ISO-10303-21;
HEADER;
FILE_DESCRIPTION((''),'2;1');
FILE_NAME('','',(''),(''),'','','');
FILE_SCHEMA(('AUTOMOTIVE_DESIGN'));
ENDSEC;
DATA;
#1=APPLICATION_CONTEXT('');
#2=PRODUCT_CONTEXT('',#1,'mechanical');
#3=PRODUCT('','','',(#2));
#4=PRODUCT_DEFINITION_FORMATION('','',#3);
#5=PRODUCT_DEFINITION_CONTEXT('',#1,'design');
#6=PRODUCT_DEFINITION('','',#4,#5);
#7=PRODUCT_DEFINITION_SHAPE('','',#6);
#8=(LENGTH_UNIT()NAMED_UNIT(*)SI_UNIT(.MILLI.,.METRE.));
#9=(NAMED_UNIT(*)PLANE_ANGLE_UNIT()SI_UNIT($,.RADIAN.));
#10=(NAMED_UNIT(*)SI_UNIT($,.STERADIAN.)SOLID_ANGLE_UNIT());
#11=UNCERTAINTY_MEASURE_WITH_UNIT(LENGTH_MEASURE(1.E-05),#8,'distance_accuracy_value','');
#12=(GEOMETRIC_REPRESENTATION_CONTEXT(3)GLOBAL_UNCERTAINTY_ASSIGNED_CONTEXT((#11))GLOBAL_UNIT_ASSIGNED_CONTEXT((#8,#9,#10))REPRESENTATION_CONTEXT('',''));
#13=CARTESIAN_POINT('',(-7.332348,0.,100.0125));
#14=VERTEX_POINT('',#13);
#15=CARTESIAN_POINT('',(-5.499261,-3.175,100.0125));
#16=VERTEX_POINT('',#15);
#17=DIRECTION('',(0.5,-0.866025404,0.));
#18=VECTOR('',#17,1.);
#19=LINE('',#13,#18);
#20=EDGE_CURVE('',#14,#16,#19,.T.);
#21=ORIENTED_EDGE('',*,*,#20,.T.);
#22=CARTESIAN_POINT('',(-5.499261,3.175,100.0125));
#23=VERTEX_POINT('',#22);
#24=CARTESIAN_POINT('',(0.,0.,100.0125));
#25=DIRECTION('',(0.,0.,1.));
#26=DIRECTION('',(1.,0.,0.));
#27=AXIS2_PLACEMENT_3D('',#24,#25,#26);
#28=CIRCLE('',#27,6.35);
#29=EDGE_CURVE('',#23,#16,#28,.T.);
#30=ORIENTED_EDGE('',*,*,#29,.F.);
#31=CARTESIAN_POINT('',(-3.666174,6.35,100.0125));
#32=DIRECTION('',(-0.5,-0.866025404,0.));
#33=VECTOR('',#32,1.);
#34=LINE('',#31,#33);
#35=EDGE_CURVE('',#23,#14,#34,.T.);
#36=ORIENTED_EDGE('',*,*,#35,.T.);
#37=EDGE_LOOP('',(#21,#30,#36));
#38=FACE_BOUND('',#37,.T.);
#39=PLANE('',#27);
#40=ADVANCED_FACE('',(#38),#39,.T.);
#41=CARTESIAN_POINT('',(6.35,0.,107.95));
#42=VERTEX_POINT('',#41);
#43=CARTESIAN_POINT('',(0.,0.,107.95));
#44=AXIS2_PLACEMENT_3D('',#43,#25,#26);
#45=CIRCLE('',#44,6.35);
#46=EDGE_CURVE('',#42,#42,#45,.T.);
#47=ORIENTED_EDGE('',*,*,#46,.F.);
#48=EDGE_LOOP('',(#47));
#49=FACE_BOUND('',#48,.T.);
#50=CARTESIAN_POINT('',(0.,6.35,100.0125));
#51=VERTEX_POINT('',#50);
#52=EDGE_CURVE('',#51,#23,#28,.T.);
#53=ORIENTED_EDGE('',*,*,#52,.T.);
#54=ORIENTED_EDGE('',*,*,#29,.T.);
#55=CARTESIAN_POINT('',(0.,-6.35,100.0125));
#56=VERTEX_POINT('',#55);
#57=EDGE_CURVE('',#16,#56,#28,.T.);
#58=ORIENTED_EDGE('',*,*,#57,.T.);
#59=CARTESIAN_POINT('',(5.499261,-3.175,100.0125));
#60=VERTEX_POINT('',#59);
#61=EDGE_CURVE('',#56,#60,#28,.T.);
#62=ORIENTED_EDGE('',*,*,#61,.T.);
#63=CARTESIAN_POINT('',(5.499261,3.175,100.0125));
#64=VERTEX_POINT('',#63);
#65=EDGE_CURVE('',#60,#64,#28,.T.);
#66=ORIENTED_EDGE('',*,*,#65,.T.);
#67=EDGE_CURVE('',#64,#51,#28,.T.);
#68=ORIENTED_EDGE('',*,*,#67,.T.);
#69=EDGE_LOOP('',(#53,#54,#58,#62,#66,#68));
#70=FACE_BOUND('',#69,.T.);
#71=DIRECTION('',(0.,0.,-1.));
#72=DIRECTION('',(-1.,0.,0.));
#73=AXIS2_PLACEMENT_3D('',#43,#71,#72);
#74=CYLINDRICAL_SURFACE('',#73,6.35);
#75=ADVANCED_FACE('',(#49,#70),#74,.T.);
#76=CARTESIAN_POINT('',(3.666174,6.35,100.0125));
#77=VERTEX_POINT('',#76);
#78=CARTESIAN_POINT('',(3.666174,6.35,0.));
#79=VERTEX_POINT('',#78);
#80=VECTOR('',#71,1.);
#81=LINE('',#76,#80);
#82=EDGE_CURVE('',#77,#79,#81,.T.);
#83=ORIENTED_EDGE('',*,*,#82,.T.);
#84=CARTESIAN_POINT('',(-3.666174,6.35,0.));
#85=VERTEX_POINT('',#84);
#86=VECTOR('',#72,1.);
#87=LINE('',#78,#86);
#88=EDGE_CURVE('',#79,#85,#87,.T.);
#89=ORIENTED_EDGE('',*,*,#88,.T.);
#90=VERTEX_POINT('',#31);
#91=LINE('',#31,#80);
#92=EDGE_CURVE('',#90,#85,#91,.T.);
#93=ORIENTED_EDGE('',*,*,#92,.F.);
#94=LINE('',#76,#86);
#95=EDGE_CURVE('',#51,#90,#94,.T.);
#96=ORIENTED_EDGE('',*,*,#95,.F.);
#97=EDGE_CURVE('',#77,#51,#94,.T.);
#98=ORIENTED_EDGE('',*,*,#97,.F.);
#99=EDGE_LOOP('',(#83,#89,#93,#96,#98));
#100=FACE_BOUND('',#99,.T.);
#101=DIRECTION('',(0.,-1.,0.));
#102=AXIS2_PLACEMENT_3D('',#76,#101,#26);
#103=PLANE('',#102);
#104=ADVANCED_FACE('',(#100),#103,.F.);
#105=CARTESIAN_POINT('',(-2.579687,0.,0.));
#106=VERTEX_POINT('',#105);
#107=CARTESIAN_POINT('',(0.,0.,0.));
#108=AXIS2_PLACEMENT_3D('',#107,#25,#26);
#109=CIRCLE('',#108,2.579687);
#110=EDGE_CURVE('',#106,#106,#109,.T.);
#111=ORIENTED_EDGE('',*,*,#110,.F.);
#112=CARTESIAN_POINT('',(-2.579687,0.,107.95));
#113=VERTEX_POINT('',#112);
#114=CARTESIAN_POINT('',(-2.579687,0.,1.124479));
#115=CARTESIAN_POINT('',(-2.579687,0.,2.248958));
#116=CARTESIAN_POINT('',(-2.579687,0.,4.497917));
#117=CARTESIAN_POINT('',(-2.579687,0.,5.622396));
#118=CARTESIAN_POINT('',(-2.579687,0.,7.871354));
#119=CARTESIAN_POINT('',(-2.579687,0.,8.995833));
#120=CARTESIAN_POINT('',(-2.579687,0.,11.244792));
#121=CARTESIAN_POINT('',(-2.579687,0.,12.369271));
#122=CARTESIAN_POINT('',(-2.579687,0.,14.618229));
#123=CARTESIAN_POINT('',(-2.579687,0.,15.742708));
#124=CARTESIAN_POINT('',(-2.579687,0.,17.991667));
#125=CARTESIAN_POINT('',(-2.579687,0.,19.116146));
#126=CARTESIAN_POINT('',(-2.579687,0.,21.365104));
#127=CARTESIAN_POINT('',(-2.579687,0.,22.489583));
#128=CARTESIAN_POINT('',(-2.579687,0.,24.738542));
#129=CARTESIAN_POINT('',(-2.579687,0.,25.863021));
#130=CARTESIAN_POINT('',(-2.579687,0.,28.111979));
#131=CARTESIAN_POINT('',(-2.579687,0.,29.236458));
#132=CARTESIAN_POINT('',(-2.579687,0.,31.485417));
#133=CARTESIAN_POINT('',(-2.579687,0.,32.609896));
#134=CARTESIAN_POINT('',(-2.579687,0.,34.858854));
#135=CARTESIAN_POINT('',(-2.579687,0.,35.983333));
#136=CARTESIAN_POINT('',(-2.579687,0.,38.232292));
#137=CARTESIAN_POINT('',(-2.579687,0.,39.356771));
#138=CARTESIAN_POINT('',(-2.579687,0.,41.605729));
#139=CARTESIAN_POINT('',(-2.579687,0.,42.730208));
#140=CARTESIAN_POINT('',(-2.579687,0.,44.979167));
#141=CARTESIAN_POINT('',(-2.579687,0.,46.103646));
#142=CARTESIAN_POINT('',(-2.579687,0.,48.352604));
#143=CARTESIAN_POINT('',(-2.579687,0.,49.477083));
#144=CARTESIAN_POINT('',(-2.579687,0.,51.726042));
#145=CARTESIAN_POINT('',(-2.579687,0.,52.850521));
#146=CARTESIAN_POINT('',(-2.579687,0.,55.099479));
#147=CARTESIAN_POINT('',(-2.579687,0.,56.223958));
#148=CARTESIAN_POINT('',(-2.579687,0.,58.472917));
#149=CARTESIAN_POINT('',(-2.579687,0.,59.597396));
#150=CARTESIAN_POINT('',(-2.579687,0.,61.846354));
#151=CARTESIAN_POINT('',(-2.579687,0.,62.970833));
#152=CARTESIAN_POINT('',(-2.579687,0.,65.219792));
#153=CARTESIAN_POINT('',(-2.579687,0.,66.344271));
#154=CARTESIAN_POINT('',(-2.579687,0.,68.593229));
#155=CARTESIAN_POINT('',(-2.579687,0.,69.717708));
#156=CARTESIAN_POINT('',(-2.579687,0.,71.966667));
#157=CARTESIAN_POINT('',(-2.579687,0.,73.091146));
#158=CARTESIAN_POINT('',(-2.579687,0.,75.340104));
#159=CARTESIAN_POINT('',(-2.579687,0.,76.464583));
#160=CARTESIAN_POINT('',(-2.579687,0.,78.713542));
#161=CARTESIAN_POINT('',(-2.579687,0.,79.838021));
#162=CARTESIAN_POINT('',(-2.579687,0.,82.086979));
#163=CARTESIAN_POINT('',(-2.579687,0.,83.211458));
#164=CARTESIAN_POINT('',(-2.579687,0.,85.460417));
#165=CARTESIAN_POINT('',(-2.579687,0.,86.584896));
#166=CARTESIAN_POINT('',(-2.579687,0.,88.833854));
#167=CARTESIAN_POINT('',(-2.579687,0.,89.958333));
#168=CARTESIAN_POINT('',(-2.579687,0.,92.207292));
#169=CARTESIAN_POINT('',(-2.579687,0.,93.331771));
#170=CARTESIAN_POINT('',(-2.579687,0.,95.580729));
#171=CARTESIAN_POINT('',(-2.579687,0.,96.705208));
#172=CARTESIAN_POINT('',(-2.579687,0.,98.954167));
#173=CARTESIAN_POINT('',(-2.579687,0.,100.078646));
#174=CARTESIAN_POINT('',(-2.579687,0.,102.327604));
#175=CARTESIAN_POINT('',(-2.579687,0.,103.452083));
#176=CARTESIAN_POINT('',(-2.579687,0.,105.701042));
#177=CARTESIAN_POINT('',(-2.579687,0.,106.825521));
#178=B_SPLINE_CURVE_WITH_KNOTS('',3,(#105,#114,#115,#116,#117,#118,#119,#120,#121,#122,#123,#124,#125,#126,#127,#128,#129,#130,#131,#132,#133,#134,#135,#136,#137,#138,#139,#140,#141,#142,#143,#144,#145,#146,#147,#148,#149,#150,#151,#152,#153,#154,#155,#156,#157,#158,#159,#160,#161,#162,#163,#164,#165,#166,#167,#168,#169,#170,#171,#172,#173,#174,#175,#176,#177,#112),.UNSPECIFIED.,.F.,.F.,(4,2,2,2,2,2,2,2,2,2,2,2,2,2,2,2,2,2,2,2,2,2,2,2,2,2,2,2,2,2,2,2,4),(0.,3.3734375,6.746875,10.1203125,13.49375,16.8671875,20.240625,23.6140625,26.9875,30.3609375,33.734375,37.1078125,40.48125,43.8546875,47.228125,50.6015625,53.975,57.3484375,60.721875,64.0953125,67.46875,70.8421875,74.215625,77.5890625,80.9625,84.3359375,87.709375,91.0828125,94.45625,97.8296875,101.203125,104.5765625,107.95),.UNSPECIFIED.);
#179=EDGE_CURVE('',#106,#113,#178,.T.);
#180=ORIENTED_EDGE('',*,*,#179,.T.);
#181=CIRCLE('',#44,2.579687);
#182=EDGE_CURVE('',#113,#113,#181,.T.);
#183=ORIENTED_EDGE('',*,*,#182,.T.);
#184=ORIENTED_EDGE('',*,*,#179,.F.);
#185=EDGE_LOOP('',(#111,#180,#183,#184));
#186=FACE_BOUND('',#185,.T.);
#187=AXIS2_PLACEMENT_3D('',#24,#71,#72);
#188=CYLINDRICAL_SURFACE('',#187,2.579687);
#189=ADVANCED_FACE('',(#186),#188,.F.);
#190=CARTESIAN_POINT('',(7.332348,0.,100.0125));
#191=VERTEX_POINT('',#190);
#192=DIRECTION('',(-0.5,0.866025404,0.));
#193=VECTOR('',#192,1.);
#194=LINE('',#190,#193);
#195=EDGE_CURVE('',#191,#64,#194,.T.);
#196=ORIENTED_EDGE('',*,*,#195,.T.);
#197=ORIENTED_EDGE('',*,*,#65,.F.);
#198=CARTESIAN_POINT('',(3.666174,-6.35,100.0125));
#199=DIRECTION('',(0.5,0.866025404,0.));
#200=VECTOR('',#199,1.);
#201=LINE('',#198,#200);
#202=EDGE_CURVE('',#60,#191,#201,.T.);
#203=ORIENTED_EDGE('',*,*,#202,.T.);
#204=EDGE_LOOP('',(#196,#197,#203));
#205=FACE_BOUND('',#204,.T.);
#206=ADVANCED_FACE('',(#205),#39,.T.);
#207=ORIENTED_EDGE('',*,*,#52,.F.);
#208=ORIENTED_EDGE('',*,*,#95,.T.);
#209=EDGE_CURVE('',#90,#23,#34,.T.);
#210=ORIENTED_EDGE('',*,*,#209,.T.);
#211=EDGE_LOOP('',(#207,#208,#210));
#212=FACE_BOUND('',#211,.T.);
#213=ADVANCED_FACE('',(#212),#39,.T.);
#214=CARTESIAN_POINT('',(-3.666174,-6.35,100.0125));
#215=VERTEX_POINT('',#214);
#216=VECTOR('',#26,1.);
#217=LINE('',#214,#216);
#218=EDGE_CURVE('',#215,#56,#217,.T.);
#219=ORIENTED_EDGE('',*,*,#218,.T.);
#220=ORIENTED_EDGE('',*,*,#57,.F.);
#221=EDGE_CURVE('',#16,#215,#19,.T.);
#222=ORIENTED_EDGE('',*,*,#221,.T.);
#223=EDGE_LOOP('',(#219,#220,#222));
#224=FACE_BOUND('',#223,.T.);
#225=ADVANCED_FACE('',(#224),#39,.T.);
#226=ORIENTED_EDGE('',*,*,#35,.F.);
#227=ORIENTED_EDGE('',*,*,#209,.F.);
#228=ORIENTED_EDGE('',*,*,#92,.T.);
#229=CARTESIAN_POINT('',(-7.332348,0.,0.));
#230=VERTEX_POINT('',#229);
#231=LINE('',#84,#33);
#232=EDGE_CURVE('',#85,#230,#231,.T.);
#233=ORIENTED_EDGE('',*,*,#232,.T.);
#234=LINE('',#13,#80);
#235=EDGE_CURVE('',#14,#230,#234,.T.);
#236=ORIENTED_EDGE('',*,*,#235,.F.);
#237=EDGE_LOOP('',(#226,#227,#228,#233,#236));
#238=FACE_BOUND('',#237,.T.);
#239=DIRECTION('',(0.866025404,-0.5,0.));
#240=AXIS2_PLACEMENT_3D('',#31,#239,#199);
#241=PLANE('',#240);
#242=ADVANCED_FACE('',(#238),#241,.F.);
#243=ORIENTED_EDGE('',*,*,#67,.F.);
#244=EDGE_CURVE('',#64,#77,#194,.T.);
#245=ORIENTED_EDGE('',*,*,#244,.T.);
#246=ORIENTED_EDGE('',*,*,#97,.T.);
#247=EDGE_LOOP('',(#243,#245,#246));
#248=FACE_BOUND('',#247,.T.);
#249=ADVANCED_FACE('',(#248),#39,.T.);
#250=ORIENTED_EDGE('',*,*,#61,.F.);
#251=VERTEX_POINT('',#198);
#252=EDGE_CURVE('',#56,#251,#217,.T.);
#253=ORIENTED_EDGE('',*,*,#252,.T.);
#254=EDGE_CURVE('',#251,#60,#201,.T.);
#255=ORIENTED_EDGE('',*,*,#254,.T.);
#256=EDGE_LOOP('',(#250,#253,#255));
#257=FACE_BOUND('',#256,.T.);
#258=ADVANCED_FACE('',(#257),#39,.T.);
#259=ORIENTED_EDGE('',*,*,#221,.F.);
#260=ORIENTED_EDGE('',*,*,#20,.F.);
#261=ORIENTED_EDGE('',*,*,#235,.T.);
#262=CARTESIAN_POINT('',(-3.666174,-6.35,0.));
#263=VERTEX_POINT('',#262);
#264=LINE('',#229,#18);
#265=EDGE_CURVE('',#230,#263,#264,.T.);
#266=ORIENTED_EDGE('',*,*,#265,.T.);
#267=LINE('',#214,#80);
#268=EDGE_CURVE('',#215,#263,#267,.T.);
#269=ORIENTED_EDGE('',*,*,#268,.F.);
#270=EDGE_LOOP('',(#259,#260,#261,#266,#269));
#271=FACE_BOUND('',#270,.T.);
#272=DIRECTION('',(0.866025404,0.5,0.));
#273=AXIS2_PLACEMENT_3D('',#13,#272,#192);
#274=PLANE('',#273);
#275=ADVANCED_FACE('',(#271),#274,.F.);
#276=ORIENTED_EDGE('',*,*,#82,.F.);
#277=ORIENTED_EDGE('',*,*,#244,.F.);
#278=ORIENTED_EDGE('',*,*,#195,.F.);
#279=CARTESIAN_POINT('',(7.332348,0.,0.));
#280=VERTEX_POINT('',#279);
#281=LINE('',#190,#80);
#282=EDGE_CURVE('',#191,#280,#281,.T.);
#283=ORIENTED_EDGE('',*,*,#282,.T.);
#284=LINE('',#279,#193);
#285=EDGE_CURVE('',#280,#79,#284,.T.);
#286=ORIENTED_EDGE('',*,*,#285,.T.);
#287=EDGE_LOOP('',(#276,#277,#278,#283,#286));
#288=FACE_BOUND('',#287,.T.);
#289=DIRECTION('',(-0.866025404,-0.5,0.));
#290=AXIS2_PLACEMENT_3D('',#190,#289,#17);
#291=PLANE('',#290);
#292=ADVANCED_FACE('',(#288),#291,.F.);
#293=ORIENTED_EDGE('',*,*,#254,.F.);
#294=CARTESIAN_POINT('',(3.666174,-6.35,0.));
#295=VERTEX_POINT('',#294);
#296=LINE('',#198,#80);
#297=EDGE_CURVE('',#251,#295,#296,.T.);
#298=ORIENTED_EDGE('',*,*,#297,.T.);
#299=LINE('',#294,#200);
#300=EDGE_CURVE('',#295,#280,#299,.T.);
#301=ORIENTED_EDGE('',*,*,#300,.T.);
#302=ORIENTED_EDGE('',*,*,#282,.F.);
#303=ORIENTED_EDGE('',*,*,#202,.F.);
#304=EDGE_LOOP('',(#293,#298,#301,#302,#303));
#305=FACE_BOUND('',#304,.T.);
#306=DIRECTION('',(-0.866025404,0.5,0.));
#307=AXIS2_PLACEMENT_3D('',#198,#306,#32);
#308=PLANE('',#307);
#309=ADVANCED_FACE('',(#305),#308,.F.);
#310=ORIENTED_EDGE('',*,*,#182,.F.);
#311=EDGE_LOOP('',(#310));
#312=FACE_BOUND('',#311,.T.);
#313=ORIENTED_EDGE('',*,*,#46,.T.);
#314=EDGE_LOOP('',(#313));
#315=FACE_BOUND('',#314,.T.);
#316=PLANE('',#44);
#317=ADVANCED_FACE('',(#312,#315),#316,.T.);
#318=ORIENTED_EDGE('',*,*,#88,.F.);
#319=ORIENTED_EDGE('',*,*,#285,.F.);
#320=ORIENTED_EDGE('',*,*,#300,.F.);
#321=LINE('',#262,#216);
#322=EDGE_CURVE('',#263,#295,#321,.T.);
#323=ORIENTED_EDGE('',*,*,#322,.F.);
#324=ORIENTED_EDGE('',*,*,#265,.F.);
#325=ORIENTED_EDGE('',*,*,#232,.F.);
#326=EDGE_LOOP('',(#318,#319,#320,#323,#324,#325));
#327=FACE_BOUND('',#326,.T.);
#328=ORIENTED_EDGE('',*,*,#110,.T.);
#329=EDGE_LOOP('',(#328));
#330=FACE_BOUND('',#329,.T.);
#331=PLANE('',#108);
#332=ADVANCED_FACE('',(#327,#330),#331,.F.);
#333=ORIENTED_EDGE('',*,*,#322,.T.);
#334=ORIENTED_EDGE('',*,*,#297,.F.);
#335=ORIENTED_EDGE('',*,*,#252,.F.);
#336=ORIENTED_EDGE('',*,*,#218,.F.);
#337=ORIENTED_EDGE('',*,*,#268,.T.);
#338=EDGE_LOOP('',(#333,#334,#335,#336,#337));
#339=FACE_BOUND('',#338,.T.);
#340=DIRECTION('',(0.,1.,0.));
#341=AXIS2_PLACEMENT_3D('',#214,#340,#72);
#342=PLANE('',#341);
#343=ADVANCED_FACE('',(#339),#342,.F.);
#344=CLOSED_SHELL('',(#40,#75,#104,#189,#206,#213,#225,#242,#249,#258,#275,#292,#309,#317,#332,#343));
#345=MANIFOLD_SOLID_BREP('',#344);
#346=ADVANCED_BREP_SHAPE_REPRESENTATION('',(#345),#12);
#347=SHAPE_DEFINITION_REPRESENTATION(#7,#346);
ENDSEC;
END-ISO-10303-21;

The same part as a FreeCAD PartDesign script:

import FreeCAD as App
import Part
import Sketcher

V = App.Vector
Q = App.Units.Quantity

doc = App.newDocument("Part")
body = doc.addObject("PartDesign::Body", "Body")

# Sketch on XY plane
sketch1 = body.newObject("Sketcher::SketchObject", "Sketch")
sketch1.AttachmentSupport = (doc.getObject("XY_Plane"), [""])
sketch1.MapMode = "FlatFace"
sketch1.addGeometry([
    Part.LineSegment(V(7.332348, 0, 0), V(3.666174, 6.35, 0)),  # 0
    Part.LineSegment(V(3.666174, 6.35, 0), V(-3.666174, 6.35, 0)),  # 1
    Part.LineSegment(V(-3.666174, 6.35, 0), V(-7.332348, 0, 0)),  # 2
    Part.LineSegment(V(-7.332348, 0, 0), V(-3.666174, -6.35, 0)),  # 3
    Part.LineSegment(V(-3.666174, -6.35, 0), V(3.666174, -6.35, 0)),  # 4
    Part.LineSegment(V(3.666174, -6.35, 0), V(7.332348, 0, 0)),  # 5
    Part.Circle(V(0, 0, 0), V(0, 0, 1), 2.579687),  # 6
], False)
sketch1.addConstraint([
    Sketcher.Constraint("Coincident", 0, 2, 1, 1),
    Sketcher.Constraint("Coincident", 1, 2, 2, 1),
    Sketcher.Constraint("Coincident", 2, 2, 3, 1),
    Sketcher.Constraint("Coincident", 3, 2, 4, 1),
    Sketcher.Constraint("Coincident", 4, 2, 5, 1),
    Sketcher.Constraint("Coincident", 5, 2, 0, 1),
    Sketcher.Constraint("Horizontal", 1),
    Sketcher.Constraint("Horizontal", 4),
    Sketcher.Constraint("Coincident", 6, 3, -1, 1),
    Sketcher.Constraint("Symmetric", 0, 2, 3, 2, -1, 1),
    Sketcher.Constraint("Symmetric", 2, 2, 5, 2, -1, 1),
    Sketcher.Constraint("PointOnObject", 2, 2, -1),
    Sketcher.Constraint("Parallel", 2, 5),
    Sketcher.Constraint("Vertical", 1, 2, 3, 2),
    Sketcher.Constraint("Diameter", 6, Q("0.203125 in")),
    Sketcher.Constraint("Angle", 0, Q("120 deg")),
    Sketcher.Constraint("DistanceY", 3, 2, 1, 2, Q("0.5 in")),
    Sketcher.Constraint("DistanceX", 1, 2, 1, 1, Q("7.332348 mm")),
])
pad1 = body.newObject("PartDesign::Pad", "Pad")
pad1.Profile = sketch1
pad1.Length = Q("3.9375 in")

# Sketch on XY plane
sketch2 = body.newObject("Sketcher::SketchObject", "Sketch001")
sketch2.AttachmentSupport = (doc.getObject("XY_Plane"), [""])
sketch2.MapMode = "FlatFace"
sketch2.AttachmentOffset = App.Placement(V(0, 0, 3.9375 * 25.4), App.Rotation())
sketch2.addGeometry([
    Part.Circle(V(0, 0, 0), V(0, 0, 1), 6.35),
    Part.Circle(V(0, 0, 0), V(0, 0, 1), 2.579687),
], False)
sketch2.addConstraint([
    Sketcher.Constraint("Coincident", 0, 3, -1, 1),
    Sketcher.Constraint("Coincident", 1, 3, -1, 1),
    Sketcher.Constraint("Diameter", 0, Q("0.5 in")),
    Sketcher.Constraint("Diameter", 1, Q("0.203125 in")),
])
pad2 = body.newObject("PartDesign::Pad", "Pad001")
pad2.Profile = sketch2
pad2.Length = Q("0.3125 in")

doc.recompute()
